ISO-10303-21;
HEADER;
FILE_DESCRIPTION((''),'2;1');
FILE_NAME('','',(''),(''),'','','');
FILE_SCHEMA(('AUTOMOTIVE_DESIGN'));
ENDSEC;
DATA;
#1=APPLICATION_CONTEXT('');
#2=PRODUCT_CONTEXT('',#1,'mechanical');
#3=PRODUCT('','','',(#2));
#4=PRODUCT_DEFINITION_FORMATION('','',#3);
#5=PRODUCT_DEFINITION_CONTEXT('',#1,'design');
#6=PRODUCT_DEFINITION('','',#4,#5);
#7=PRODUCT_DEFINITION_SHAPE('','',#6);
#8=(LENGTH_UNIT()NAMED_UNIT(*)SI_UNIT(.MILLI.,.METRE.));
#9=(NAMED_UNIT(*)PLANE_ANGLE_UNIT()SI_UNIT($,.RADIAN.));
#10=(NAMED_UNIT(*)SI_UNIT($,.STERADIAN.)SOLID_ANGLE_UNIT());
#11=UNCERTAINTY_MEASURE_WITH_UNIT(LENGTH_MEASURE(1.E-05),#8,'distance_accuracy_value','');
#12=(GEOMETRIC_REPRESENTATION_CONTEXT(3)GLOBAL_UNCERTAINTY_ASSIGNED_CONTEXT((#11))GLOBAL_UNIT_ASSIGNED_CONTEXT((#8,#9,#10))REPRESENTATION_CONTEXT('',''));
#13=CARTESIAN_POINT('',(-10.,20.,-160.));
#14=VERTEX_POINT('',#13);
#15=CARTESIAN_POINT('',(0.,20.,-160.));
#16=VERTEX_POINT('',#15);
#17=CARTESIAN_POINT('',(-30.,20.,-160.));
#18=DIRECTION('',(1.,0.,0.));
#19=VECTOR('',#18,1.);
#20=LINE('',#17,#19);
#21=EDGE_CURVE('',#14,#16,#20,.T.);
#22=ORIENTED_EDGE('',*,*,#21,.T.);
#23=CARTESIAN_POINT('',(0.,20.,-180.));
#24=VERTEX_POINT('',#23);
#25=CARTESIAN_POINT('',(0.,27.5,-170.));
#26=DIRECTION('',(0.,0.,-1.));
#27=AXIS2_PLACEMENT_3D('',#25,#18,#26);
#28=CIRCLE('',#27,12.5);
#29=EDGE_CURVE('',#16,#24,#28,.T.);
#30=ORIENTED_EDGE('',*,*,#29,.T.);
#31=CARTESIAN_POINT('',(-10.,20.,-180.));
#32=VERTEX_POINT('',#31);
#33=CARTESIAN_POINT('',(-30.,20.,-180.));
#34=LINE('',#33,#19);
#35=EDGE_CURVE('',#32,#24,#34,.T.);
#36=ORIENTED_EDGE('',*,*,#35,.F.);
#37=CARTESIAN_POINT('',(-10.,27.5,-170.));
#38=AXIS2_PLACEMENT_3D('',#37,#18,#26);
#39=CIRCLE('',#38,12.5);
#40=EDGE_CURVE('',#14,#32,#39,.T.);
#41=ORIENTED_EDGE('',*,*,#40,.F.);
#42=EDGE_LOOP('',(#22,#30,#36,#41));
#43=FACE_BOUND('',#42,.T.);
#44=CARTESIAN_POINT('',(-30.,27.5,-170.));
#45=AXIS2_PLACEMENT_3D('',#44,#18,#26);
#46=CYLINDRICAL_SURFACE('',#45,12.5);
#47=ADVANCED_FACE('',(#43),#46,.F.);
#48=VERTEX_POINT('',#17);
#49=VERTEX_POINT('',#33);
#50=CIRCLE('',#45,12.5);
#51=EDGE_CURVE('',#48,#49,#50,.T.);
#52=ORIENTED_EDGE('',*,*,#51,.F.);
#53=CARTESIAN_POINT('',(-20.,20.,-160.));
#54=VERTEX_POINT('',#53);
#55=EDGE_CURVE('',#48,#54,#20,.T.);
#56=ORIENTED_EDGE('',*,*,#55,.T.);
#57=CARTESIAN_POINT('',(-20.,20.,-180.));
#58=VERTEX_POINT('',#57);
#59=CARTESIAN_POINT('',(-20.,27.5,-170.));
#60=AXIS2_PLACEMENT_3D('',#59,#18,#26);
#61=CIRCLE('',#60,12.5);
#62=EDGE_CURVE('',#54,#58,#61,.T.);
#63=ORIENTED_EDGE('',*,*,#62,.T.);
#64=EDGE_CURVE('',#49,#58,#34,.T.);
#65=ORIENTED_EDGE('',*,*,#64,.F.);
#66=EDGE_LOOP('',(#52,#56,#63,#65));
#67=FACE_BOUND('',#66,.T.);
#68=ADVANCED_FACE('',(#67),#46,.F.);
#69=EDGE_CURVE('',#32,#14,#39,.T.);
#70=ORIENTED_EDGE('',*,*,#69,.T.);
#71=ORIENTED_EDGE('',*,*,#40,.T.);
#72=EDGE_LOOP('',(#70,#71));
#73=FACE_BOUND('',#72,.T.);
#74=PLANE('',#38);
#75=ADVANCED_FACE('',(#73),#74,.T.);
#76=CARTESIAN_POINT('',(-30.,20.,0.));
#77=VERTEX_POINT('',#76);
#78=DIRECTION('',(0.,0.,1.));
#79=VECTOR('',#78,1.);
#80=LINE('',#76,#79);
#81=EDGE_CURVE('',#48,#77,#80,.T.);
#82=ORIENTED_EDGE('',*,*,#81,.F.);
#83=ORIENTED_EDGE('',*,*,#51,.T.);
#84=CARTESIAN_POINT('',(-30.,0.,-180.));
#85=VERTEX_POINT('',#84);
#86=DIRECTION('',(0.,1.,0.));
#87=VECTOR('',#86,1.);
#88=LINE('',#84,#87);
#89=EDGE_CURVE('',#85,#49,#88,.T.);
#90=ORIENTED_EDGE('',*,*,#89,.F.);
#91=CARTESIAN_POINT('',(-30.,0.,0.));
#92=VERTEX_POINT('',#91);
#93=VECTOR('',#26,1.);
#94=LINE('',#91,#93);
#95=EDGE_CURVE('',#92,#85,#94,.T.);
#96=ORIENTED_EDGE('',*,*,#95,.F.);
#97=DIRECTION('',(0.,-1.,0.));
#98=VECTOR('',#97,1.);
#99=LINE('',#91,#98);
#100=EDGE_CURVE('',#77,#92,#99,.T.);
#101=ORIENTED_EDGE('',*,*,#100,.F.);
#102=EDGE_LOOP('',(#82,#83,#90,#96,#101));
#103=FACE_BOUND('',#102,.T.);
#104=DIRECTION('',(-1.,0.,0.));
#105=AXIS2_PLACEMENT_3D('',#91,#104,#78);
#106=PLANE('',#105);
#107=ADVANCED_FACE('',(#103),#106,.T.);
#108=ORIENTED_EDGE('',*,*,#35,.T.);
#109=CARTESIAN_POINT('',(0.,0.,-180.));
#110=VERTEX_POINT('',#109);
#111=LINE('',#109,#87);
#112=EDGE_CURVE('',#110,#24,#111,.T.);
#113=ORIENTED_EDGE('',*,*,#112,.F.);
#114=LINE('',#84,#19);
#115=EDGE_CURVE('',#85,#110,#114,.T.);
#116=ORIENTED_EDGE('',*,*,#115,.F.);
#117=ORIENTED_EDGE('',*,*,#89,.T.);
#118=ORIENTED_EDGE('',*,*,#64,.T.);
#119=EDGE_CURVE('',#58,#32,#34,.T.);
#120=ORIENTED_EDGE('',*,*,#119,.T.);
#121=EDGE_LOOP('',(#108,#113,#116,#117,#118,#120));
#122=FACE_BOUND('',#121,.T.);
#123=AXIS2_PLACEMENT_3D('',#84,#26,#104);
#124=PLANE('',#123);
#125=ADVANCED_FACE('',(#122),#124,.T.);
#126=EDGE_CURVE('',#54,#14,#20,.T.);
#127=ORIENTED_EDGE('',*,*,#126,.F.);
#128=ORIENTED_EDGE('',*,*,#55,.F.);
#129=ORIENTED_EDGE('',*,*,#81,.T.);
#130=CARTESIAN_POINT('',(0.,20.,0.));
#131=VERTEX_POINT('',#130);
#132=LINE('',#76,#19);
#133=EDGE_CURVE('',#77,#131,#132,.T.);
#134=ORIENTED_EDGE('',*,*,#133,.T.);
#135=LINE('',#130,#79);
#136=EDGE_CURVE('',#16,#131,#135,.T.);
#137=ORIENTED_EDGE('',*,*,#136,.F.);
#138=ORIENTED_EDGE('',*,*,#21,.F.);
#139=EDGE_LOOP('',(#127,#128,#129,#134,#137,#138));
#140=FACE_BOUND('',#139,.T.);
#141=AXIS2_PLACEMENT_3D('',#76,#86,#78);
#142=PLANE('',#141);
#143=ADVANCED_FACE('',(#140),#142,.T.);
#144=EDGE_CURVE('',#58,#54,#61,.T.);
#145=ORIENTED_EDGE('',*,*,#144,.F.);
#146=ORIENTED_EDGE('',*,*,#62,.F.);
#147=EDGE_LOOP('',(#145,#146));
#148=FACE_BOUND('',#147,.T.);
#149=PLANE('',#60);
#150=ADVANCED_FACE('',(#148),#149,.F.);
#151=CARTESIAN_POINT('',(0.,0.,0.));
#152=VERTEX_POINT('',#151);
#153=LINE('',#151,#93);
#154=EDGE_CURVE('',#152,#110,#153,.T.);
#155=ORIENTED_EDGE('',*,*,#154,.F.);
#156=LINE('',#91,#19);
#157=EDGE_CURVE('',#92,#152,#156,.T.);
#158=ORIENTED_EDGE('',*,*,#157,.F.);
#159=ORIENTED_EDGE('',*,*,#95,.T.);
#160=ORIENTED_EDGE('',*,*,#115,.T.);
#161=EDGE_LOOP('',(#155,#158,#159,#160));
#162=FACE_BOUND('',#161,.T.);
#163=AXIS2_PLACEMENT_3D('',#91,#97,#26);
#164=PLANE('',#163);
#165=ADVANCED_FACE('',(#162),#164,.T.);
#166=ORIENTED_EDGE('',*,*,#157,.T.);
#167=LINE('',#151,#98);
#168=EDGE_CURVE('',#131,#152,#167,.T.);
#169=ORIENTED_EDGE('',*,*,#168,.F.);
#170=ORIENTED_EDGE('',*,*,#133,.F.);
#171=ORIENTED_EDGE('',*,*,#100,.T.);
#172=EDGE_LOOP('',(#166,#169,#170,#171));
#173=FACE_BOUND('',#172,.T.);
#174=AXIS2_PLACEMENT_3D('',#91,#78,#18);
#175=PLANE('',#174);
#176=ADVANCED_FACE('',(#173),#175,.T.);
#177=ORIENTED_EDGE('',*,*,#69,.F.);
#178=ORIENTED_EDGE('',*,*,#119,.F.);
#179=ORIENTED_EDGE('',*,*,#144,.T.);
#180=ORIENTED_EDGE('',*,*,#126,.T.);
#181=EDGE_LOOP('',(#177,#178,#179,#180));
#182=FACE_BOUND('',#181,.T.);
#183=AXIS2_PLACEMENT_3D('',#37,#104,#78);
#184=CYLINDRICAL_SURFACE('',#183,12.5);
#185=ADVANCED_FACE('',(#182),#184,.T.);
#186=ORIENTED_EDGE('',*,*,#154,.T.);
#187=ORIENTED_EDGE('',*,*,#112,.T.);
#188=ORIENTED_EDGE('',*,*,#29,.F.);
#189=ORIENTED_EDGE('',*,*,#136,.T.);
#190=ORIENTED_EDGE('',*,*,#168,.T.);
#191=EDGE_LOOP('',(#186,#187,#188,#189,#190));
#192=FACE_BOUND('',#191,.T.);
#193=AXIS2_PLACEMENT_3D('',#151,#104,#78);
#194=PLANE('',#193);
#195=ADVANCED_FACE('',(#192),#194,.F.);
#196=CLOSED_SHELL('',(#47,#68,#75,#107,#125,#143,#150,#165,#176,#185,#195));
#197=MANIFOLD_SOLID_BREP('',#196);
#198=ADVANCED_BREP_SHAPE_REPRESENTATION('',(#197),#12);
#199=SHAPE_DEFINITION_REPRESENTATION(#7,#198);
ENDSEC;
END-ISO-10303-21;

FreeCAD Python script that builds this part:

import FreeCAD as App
import Part
import Sketcher
from FreeCAD import Vector


def add_polygon(sketch, points):
    """Adds a closed chain of lines whose ends are joined by coincident constraints."""
    first, n = sketch.GeometryCount, len(points)
    for a, b in zip(points, points[1:] + points[:1]):
        sketch.addGeometry(Part.LineSegment(App.Vector(*a, 0), App.Vector(*b, 0)), False)
    for i in range(n):
        sketch.addConstraint(Sketcher.Constraint("Coincident", first + i, 2, first + (i + 1) % n, 1))

doc = App.newDocument("Part")
body = doc.addObject("PartDesign::Body", "Body")

# Sketch on YZ plane
sketch1 = body.newObject("Sketcher::SketchObject", "Sketch")
sketch1.AttachmentSupport = (doc.getObject("YZ_Plane"), [""])
sketch1.MapMode = "FlatFace"
add_polygon(sketch1, [(20, 0), (0, 0), (0, -180), (20, -180)])  # lines 0-3
sketch1.addConstraint([
    Sketcher.Constraint("Horizontal", 0),
    Sketcher.Constraint("Vertical", 1),
    Sketcher.Constraint("Horizontal", 2),
    Sketcher.Constraint("Vertical", 3),
    Sketcher.Constraint("Coincident", 0, 2, -1, 1),
    Sketcher.Constraint("DistanceX", 0, 2, 0, 1, 20.0),
    Sketcher.Constraint("DistanceY", 1, 2, 1, 1, 180.0),
])
pad1 = body.newObject("PartDesign::Pad", "Pad")
pad1.Profile = sketch1
pad1.Length = 30
pad1.Reversed = True

# Sketch on YZ plane
sketch2 = body.newObject("Sketcher::SketchObject", "Sketch001")
sketch2.AttachmentSupport = (doc.getObject("YZ_Plane"), [""])
sketch2.MapMode = "FlatFace"
sketch2.addGeometry(Part.Circle(Vector(28, -170, 0), Vector(0, 0, 1), 12), False)
sketch2.addConstraint([
    Sketcher.Constraint("Diameter", 0, 25.0),
    Sketcher.Constraint("DistanceY", 0, 3, -1, 1, 170.0),
    Sketcher.Constraint("DistanceX", -1, 1, 0, 3, 27.5),
])
pocket1 = body.newObject("PartDesign::Pocket", "Pocket")
pocket1.Profile = sketch2
pocket1.Type = "ThroughAll"

# Sketch on YZ plane
sketch3 = body.newObject("Sketcher::SketchObject", "Sketch002")
sketch3.AttachmentSupport = (doc.getObject("YZ_Plane"), [""])
sketch3.MapMode = "FlatFace"
sketch3.AttachmentOffset = App.Placement(Vector(0, 0, -15), App.Rotation())
sketch3.addGeometry(Part.Circle(Vector(28, -170, 0), Vector(0, 0, 1), 12), False)
sketch3.addConstraint([
    Sketcher.Constraint("Diameter", 0, 25.0),
    Sketcher.Constraint("DistanceY", 0, 3, -1, 1, 170.0),
    Sketcher.Constraint("DistanceX", -1, 1, 0, 3, 27.5),
])
pad2 = body.newObject("PartDesign::Pad", "Pad001")
pad2.Profile = sketch3
pad2.Length = 10
pad2.Midplane = True

doc.recompute()
